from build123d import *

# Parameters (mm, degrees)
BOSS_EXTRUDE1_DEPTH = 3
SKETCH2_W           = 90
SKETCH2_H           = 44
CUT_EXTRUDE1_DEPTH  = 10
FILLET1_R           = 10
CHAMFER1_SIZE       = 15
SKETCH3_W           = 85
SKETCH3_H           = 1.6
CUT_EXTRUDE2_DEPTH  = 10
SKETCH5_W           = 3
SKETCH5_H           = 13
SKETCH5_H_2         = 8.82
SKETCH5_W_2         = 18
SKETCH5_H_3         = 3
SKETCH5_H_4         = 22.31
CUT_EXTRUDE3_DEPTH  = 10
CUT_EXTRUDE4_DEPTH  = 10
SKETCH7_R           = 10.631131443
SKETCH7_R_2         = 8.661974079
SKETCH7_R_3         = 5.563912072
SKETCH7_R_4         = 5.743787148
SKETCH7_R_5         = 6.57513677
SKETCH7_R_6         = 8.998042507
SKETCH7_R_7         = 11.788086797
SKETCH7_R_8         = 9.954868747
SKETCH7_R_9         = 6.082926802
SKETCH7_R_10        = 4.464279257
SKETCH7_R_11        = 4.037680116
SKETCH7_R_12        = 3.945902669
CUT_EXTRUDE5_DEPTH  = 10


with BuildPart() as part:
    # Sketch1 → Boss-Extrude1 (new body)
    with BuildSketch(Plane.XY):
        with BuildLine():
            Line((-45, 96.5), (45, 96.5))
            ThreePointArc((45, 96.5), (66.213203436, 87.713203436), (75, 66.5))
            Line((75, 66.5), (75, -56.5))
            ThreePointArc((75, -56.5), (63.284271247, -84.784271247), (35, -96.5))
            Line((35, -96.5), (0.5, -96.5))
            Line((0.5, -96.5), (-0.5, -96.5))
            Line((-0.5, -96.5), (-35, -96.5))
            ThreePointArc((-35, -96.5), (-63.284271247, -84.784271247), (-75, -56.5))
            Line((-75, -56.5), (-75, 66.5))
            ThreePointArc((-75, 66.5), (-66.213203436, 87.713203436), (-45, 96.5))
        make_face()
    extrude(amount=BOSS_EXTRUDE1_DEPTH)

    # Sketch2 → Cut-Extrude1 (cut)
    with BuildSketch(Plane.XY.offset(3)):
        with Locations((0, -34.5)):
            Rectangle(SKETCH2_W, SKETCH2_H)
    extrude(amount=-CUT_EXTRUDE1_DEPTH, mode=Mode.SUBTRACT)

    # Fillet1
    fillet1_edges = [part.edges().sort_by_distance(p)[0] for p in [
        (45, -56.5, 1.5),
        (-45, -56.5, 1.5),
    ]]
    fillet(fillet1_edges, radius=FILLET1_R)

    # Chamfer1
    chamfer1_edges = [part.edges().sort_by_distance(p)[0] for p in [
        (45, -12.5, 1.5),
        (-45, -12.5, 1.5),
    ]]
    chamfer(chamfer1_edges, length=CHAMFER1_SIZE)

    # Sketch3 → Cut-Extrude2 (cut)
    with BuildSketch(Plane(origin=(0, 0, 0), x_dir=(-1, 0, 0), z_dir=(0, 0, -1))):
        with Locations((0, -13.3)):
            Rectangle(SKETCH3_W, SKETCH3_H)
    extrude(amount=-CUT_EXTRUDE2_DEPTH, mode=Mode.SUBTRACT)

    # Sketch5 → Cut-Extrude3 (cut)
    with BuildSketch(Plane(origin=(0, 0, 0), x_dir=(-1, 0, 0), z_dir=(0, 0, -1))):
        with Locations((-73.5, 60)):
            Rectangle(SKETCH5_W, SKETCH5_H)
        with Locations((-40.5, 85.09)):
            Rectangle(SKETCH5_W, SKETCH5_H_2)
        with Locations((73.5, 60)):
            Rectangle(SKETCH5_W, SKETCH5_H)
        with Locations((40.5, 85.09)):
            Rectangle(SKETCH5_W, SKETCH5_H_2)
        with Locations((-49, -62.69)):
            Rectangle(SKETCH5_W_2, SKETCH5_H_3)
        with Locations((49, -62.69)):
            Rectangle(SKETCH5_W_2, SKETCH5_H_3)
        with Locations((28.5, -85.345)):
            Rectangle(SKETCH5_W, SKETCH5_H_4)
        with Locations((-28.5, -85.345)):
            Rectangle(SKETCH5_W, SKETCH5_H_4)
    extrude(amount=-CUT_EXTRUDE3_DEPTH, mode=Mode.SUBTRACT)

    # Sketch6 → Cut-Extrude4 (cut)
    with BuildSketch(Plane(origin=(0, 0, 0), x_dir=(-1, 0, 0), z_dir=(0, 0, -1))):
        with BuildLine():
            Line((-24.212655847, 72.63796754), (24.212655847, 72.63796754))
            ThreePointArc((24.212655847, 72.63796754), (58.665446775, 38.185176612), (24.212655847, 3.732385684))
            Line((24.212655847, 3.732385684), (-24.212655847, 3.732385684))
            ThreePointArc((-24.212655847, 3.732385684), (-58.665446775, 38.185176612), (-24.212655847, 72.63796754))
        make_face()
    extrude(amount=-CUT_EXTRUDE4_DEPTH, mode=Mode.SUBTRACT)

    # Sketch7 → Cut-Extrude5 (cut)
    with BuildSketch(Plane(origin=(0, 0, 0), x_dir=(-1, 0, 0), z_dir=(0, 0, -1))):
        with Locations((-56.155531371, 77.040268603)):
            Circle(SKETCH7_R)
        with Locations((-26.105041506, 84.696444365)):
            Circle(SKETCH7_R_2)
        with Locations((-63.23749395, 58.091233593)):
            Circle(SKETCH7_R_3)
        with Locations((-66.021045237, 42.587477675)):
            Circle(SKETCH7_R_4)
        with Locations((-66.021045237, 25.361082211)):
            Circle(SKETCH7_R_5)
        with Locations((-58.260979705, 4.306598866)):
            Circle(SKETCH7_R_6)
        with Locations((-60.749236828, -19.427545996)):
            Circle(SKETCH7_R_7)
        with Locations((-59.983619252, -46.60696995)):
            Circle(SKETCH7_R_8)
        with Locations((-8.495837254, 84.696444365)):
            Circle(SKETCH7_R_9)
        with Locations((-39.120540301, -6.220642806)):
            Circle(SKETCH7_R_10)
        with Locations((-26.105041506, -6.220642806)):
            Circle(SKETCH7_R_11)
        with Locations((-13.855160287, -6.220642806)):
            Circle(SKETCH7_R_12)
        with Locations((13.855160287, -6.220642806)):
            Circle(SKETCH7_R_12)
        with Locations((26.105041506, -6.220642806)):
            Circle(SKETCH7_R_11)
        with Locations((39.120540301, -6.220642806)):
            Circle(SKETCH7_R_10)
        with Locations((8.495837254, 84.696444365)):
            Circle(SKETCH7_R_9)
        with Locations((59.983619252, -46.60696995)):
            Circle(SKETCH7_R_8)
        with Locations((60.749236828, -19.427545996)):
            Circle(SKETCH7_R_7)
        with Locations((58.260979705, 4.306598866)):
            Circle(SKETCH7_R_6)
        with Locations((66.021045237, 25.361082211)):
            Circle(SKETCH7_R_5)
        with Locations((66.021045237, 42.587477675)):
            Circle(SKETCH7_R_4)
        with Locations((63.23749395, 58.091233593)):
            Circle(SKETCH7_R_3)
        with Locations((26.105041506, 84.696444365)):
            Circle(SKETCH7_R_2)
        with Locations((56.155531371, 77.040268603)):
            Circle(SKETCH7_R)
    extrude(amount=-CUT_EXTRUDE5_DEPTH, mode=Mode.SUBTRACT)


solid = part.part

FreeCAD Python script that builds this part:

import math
import FreeCAD as App
import Part
import Sketcher

V = App.Vector
Q = App.Units.Quantity


def edges_at(feature, points):
    """Names of the edges that pass closest to the given points."""
    edges = feature.Shape.Edges
    near = lambda p: min(range(len(edges)), key=lambda i: edges[i].distToShape(Part.Vertex(*p))[0])
    return sorted({f"Edge{near(p) + 1}" for p in points})


def add_polygon(sketch, points):
    """Adds a closed chain of lines whose ends are joined by coincident constraints."""
    first, n = sketch.GeometryCount, len(points)
    for a, b in zip(points, points[1:] + points[:1]):
        sketch.addGeometry(Part.LineSegment(App.Vector(*a, 0), App.Vector(*b, 0)), False)
    for i in range(n):
        sketch.addConstraint(Sketcher.Constraint("Coincident", first + i, 2, first + (i + 1) % n, 1))

doc = App.newDocument("Part")
body = doc.addObject("PartDesign::Body", "Body")

# Sketch on XY plane
sketch1 = body.newObject("Sketcher::SketchObject", "Sketch")
sketch1.AttachmentSupport = (doc.getObject("XY_Plane"), [""])
sketch1.MapMode = "FlatFace"
sketch1.addGeometry([
    Part.LineSegment(V(45, 96.5, 0), V(-45, 96.5, 0)),  # 0
    Part.ArcOfCircle(Part.Circle(V(-45, 66.5, 0), V(0, 0, 1), 30), math.radians(90), math.radians(180)),  # 1
    Part.LineSegment(V(-75, 66.5, 0), V(-75, -56.5, 0)),  # 2
    Part.ArcOfCircle(Part.Circle(V(-35, -56.5, 0), V(0, 0, 1), 40), math.radians(-180), math.radians(-90)),  # 3
    Part.LineSegment(V(-35, -96.5, 0), V(35, -96.5, 0)),  # 4
    Part.ArcOfCircle(Part.Circle(V(35, -56.5, 0), V(0, 0, 1), 40), math.radians(-90), math.radians(0)),  # 5
    Part.LineSegment(V(75, -56.5, 0), V(75, 66.5, 0)),  # 6
    Part.ArcOfCircle(Part.Circle(V(45, 66.5, 0), V(0, 0, 1), 30), math.radians(0), math.radians(90)),  # 7
], False)
sketch1.addConstraint([
    Sketcher.Constraint("Tangent", 0, 2, 1, 1),
    Sketcher.Constraint("Tangent", 1, 2, 2, 1),
    Sketcher.Constraint("Tangent", 2, 2, 3, 1),
    Sketcher.Constraint("Tangent", 3, 2, 4, 1),
    Sketcher.Constraint("Tangent", 4, 2, 5, 1),
    Sketcher.Constraint("Tangent", 5, 2, 6, 1),
    Sketcher.Constraint("Tangent", 6, 2, 7, 1),
    Sketcher.Constraint("Tangent", 7, 2, 0, 1),
    Sketcher.Constraint("Horizontal", 0),
    Sketcher.Constraint("Vertical", 2),
    Sketcher.Constraint("Horizontal", 4),
    Sketcher.Constraint("Vertical", 6),
    Sketcher.Constraint("Equal", 3, 5),
    Sketcher.Constraint("Equal", 1, 7),
    Sketcher.Constraint("Radius", 1, Q("30 mm")),
    Sketcher.Constraint("Radius", 3, Q("40 mm")),
    Sketcher.Constraint("DistanceX", 0, 2, 0, 1, Q("90 mm")),
    Sketcher.Constraint("DistanceY", 2, 2, 2, 1, Q("123 mm")),
    Sketcher.Constraint("DistanceX", 1, 3, -1, 1, Q("45 mm")),
    Sketcher.Constraint("DistanceY", -1, 1, 1, 3, Q("66.5 mm")),
])
pad1 = body.newObject("PartDesign::Pad", "Pad")
pad1.Profile = sketch1
pad1.Length = 3

# Sketch on XY plane
sketch2 = body.newObject("Sketcher::SketchObject", "Sketch001")
sketch2.AttachmentSupport = (doc.getObject("XY_Plane"), [""])
sketch2.MapMode = "FlatFace"
sketch2.AttachmentOffset = App.Placement(V(0, 0, 3), App.Rotation())
add_polygon(sketch2, [(-45, -12.5), (-45, -56.5), (45, -56.5), (45, -12.5)])  # lines 0-3
sketch2.addConstraint([
    Sketcher.Constraint("Vertical", 0),
    Sketcher.Constraint("Horizontal", 1),
    Sketcher.Constraint("Vertical", 2),
    Sketcher.Constraint("Horizontal", 3),
    Sketcher.Constraint("DistanceX", 1, 1, 1, 2, Q("90 mm")),
    Sketcher.Constraint("DistanceY", 0, 2, 0, 1, Q("44 mm")),
    Sketcher.Constraint("DistanceX", 0, 2, -1, 1, Q("45 mm")),
    Sketcher.Constraint("DistanceY", 0, 2, -1, 1, Q("56.5 mm")),
])
pocket1 = body.newObject("PartDesign::Pocket", "Pocket")
pocket1.Profile = sketch2
pocket1.Length = 10
doc.recompute()

fillet = body.newObject("PartDesign::Fillet", "Fillet")
fillet.Base = (pocket1, edges_at(pocket1, [(45, -56.5, 1.5), (-45, -56.5, 1.5)]))
fillet.Radius = 10
doc.recompute()

chamfer = body.newObject("PartDesign::Chamfer", "Chamfer")
chamfer.Base = (fillet, edges_at(fillet, [(45, -12.5, 1.5), (-45, -12.5, 1.5)]))
chamfer.Size = 15

# Sketch on XY plane
sketch3 = body.newObject("Sketcher::SketchObject", "Sketch002")
sketch3.AttachmentSupport = (doc.getObject("XY_Plane"), [""])
sketch3.MapMode = "FlatFace"
add_polygon(sketch3, [(42.5, -12.5), (42.5, -14.1), (-42.5, -14.1), (-42.5, -12.5)])  # lines 0-3
sketch3.addConstraint([
    Sketcher.Constraint("Vertical", 0),
    Sketcher.Constraint("Horizontal", 1),
    Sketcher.Constraint("Vertical", 2),
    Sketcher.Constraint("Horizontal", 3),
    Sketcher.Constraint("DistanceX", 1, 2, 1, 1, Q("85 mm")),
    Sketcher.Constraint("DistanceY", 0, 2, 0, 1, Q("1.6 mm")),
    Sketcher.Constraint("DistanceX", -1, 1, 0, 2, Q("42.5 mm")),
    Sketcher.Constraint("DistanceY", 0, 2, -1, 1, Q("14.1 mm")),
])
pocket2 = body.newObject("PartDesign::Pocket", "Pocket001")
pocket2.Profile = sketch3
pocket2.Length = 10
pocket2.Reversed = True

# Sketch on XY plane
sketch4 = body.newObject("Sketcher::SketchObject", "Sketch003")
sketch4.AttachmentSupport = (doc.getObject("XY_Plane"), [""])
sketch4.MapMode = "FlatFace"
add_polygon(sketch4, [(75, 66.5), (75, 53.5), (72, 53.5), (72, 66.5)])  # lines 0-3
add_polygon(sketch4, [(42, 89.5), (42, 80.68), (39, 80.68), (39, 89.5)])  # lines 4-7
add_polygon(sketch4, [(-72, 66.5), (-72, 53.5), (-75, 53.5), (-75, 66.5)])  # lines 8-11
add_polygon(sketch4, [(-39, 89.5), (-39, 80.68), (-42, 80.68), (-42, 89.5)])  # lines 12-15
add_polygon(sketch4, [(58, -61.19), (58, -64.19), (40, -64.19), (40, -61.19)])  # lines 16-19
add_polygon(sketch4, [(-40, -61.19), (-40, -64.19), (-58, -64.19), (-58, -61.19)])  # lines 20-23
add_polygon(sketch4, [(-27, -74.19), (-27, -96.5), (-30, -96.5), (-30, -74.19)])  # lines 24-27
add_polygon(sketch4, [(30, -74.19), (30, -96.5), (27, -96.5), (27, -74.19)])  # lines 28-31
sketch4.addConstraint([
    Sketcher.Constraint("Vertical", 0),
    Sketcher.Constraint("Horizontal", 1),
    Sketcher.Constraint("Vertical", 2),
    Sketcher.Constraint("Horizontal", 3),
    Sketcher.Constraint("Vertical", 4),
    Sketcher.Constraint("Horizontal", 5),
    Sketcher.Constraint("Vertical", 6),
    Sketcher.Constraint("Horizontal", 7),
    Sketcher.Constraint("Vertical", 8),
    Sketcher.Constraint("Horizontal", 9),
    Sketcher.Constraint("Vertical", 10),
    Sketcher.Constraint("Horizontal", 11),
    Sketcher.Constraint("Vertical", 12),
    Sketcher.Constraint("Horizontal", 13),
    Sketcher.Constraint("Vertical", 14),
    Sketcher.Constraint("Horizontal", 15),
    Sketcher.Constraint("Vertical", 16),
    Sketcher.Constraint("Horizontal", 17),
    Sketcher.Constraint("Vertical", 18),
    Sketcher.Constraint("Horizontal", 19),
    Sketcher.Constraint("Vertical", 20),
    Sketcher.Constraint("Horizontal", 21),
    Sketcher.Constraint("Vertical", 22),
    Sketcher.Constraint("Horizontal", 23),
    Sketcher.Constraint("Vertical", 24),
    Sketcher.Constraint("Horizontal", 25),
    Sketcher.Constraint("Vertical", 26),
    Sketcher.Constraint("Horizontal", 27),
    Sketcher.Constraint("Vertical", 28),
    Sketcher.Constraint("Horizontal", 29),
    Sketcher.Constraint("Vertical", 30),
    Sketcher.Constraint("Horizontal", 31),
    Sketcher.Constraint("Symmetric", 1, 2, 8, 2, -2),
    Sketcher.Constraint("Symmetric", 3, 2, 10, 2, -2),
    Sketcher.Constraint("Symmetric", 5, 2, 12, 2, -2),
    Sketcher.Constraint("Symmetric", 7, 2, 14, 2, -2),
    Sketcher.Constraint("Symmetric", 17, 2, 20, 2, -2),
    Sketcher.Constraint("Symmetric", 19, 2, 22, 2, -2),
    Sketcher.Constraint("Symmetric", 25, 2, 28, 2, -2),
    Sketcher.Constraint("Symmetric", 27, 2, 30, 2, -2),
    Sketcher.Constraint("Equal", 3, 5),
    Sketcher.Constraint("Equal", 15, 25),
    Sketcher.Constraint("Equal", 31, 16),
    Sketcher.Constraint("DistanceX", 1, 2, 1, 1, Q("3 mm")),
    Sketcher.Constraint("DistanceX", 17, 2, 17, 1, Q("18 mm")),
    Sketcher.Constraint("DistanceY", 0, 2, 0, 1, Q("13 mm")),
    Sketcher.Constraint("DistanceX", -1, 1, 0, 2, Q("75 mm")),
    Sketcher.Constraint("DistanceX", -1, 1, 4, 2, Q("42 mm")),
    Sketcher.Constraint("DistanceX", -1, 1, 16, 2, Q("58 mm")),
    Sketcher.Constraint("DistanceX", 24, 2, -1, 1, Q("27 mm")),
    Sketcher.Constraint("DistanceY", 2, 2, 6, 2, Q("23 mm")),
    Sketcher.Constraint("DistanceY", 26, 2, 20, 2, Q("10 mm")),
    Sketcher.Constraint("DistanceY", 4, 2, 4, 1, Q("8.82 mm")),
    Sketcher.Constraint("DistanceY", 24, 2, 24, 1, Q("22.31 mm")),
    Sketcher.Constraint("DistanceY", -1, 1, 0, 2, Q("53.5 mm")),
    Sketcher.Constraint("DistanceY", 24, 2, -1, 1, Q("96.5 mm")),
])
pocket3 = body.newObject("PartDesign::Pocket", "Pocket002")
pocket3.Profile = sketch4
pocket3.Length = 10
pocket3.Reversed = True

# Sketch on XY plane
sketch5 = body.newObject("Sketcher::SketchObject", "Sketch004")
sketch5.AttachmentSupport = (doc.getObject("XY_Plane"), [""])
sketch5.MapMode = "FlatFace"
sketch5.addGeometry([
    Part.LineSegment(V(-24.212656, 72.637968, 0), V(24.212656, 72.637968, 0)),
    Part.ArcOfCircle(Part.Circle(V(24.212656, 38.185177, 0), V(0, 0, 1), 34.452791), math.radians(-90), math.radians(90)),
    Part.LineSegment(V(24.212656, 3.732386, 0), V(-24.212656, 3.732386, 0)),
    Part.ArcOfCircle(Part.Circle(V(-24.212656, 38.185177, 0), V(0, 0, 1), 34.452791), math.radians(90), math.radians(270)),
], False)
sketch5.addConstraint([
    Sketcher.Constraint("Tangent", 0, 2, 1, 2),
    Sketcher.Constraint("Tangent", 1, 1, 2, 1),
    Sketcher.Constraint("Tangent", 2, 2, 3, 2),
    Sketcher.Constraint("Tangent", 3, 1, 0, 1),
    Sketcher.Constraint("Horizontal", 0),
    Sketcher.Constraint("Horizontal", 2),
    Sketcher.Constraint("Radius", 1, Q("34.452791 mm")),
    Sketcher.Constraint("DistanceX", 0, 1, 0, 2, Q("48.425312 mm")),
    Sketcher.Constraint("DistanceX", -1, 1, 1, 3, Q("24.212656 mm")),
    Sketcher.Constraint("DistanceY", -1, 1, 1, 3, Q("38.185177 mm")),
])
pocket4 = body.newObject("PartDesign::Pocket", "Pocket003")
pocket4.Profile = sketch5
pocket4.Length = 10
pocket4.Reversed = True

# Sketch on XY plane
sketch6 = body.newObject("Sketcher::SketchObject", "Sketch005")
sketch6.AttachmentSupport = (doc.getObject("XY_Plane"), [""])
sketch6.MapMode = "FlatFace"
sketch6.addGeometry([
    Part.Circle(V(56.155531, 77.040269, 0), V(0, 0, 1), 10.631131),  # 0
    Part.Circle(V(26.105042, 84.696444, 0), V(0, 0, 1), 8.661974),  # 1
    Part.Circle(V(63.237494, 58.091234, 0), V(0, 0, 1), 5.563912),  # 2
    Part.Circle(V(66.021045, 42.587478, 0), V(0, 0, 1), 5.743787),  # 3
    Part.Circle(V(66.021045, 25.361082, 0), V(0, 0, 1), 6.575137),  # 4
    Part.Circle(V(58.26098, 4.306599, 0), V(0, 0, 1), 8.998043),  # 5
    Part.Circle(V(60.749237, -19.427546, 0), V(0, 0, 1), 11.788087),  # 6
    Part.Circle(V(59.983619, -46.60697, 0), V(0, 0, 1), 9.954869),  # 7
    Part.Circle(V(8.495837, 84.696444, 0), V(0, 0, 1), 6.082927),  # 8
    Part.Circle(V(39.12054, -6.220643, 0), V(0, 0, 1), 4.464279),  # 9
    Part.Circle(V(26.105042, -6.220643, 0), V(0, 0, 1), 4.03768),  # 10
    Part.Circle(V(13.85516, -6.220643, 0), V(0, 0, 1), 3.945903),  # 11
    Part.Circle(V(-13.85516, -6.220643, 0), V(0, 0, 1), 3.945903),  # 12
    Part.Circle(V(-26.105042, -6.220643, 0), V(0, 0, 1), 4.03768),  # 13
    Part.Circle(V(-39.12054, -6.220643, 0), V(0, 0, 1), 4.464279),  # 14
    Part.Circle(V(-8.495837, 84.696444, 0), V(0, 0, 1), 6.082927),  # 15
    Part.Circle(V(-59.983619, -46.60697, 0), V(0, 0, 1), 9.954869),  # 16
    Part.Circle(V(-60.749237, -19.427546, 0), V(0, 0, 1), 11.788087),  # 17
    Part.Circle(V(-58.26098, 4.306599, 0), V(0, 0, 1), 8.998043),  # 18
    Part.Circle(V(-66.021045, 25.361082, 0), V(0, 0, 1), 6.575137),  # 19
    Part.Circle(V(-66.021045, 42.587478, 0), V(0, 0, 1), 5.743787),  # 20
    Part.Circle(V(-63.237494, 58.091234, 0), V(0, 0, 1), 5.563912),  # 21
    Part.Circle(V(-26.105042, 84.696444, 0), V(0, 0, 1), 8.661974),  # 22
    Part.Circle(V(-56.155531, 77.040269, 0), V(0, 0, 1), 10.631131),  # 23
], False)
sketch6.addConstraint([
    Sketcher.Constraint("Equal", 11, 12),
    Sketcher.Constraint("Equal", 10, 13),
    Sketcher.Constraint("Equal", 9, 14),
    Sketcher.Constraint("Equal", 8, 15),
    Sketcher.Constraint("Equal", 7, 16),
    Sketcher.Constraint("Equal", 6, 17),
    Sketcher.Constraint("Equal", 5, 18),
    Sketcher.Constraint("Equal", 4, 19),
    Sketcher.Constraint("Equal", 3, 20),
    Sketcher.Constraint("Equal", 2, 21),
    Sketcher.Constraint("Equal", 1, 22),
    Sketcher.Constraint("Equal", 0, 23),
    Sketcher.Constraint("Symmetric", 11, 3, 12, 3, -2),
    Sketcher.Constraint("Symmetric", 10, 3, 13, 3, -2),
    Sketcher.Constraint("Symmetric", 9, 3, 14, 3, -2),
    Sketcher.Constraint("Symmetric", 8, 3, 15, 3, -2),
    Sketcher.Constraint("Symmetric", 7, 3, 16, 3, -2),
    Sketcher.Constraint("Symmetric", 6, 3, 17, 3, -2),
    Sketcher.Constraint("Symmetric", 5, 3, 18, 3, -2),
    Sketcher.Constraint("Symmetric", 4, 3, 19, 3, -2),
    Sketcher.Constraint("Symmetric", 3, 3, 20, 3, -2),
    Sketcher.Constraint("Symmetric", 2, 3, 21, 3, -2),
    Sketcher.Constraint("Symmetric", 1, 3, 22, 3, -2),
    Sketcher.Constraint("Symmetric", 0, 3, 23, 3, -2),
    Sketcher.Constraint("Horizontal", 1, 3, 8, 3),
    Sketcher.Constraint("Horizontal", 9, 3, 10, 3),
    Sketcher.Constraint("Horizontal", 10, 3, 11, 3),
    Sketcher.Constraint("Vertical", 3, 3, 4, 3),
    Sketcher.Constraint("Vertical", 1, 3, 10, 3),
    Sketcher.Constraint("Diameter", 1, Q("17.323948 mm")),
    Sketcher.Constraint("Diameter", 9, Q("8.928559 mm")),
    Sketcher.Constraint("Diameter", 10, Q("8.07536 mm")),
    Sketcher.Constraint("Diameter", 0, Q("21.262263 mm")),
    Sketcher.Constraint("Diameter", 2, Q("11.127824 mm")),
    Sketcher.Constraint("Diameter", 3, Q("11.487574 mm")),
    Sketcher.Constraint("Diameter", 4, Q("13.150274 mm")),
    Sketcher.Constraint("Diameter", 5, Q("17.996085 mm")),
    Sketcher.Constraint("Diameter", 6, Q("23.576174 mm")),
    Sketcher.Constraint("Diameter", 7, Q("19.909737 mm")),
    Sketcher.Constraint("Diameter", 8, Q("12.165854 mm")),
    Sketcher.Constraint("Diameter", 11, Q("7.891805 mm")),
    Sketcher.Constraint("DistanceY", -1, 1, 5, 3, Q("4.306599 mm")),
    Sketcher.Constraint("DistanceX", 10, 3, 9, 3, Q("13.015499 mm")),
    Sketcher.Constraint("DistanceX", 12, 3, 10, 3, Q("39.960202 mm")),
    Sketcher.Constraint("DistanceX", -1, 1, 0, 3, Q("56.155531 mm")),
    Sketcher.Constraint("DistanceY", -1, 1, 0, 3, Q("77.040269 mm")),
    Sketcher.Constraint("DistanceX", -1, 1, 1, 3, Q("26.105042 mm")),
    Sketcher.Constraint("DistanceX", -1, 1, 5, 3, Q("58.26098 mm")),
    Sketcher.Constraint("DistanceX", -1, 1, 7, 3, Q("59.983619 mm")),
    Sketcher.Constraint("DistanceY", 7, 3, -1, 1, Q("46.60697 mm")),
    Sketcher.Constraint("DistanceY", 2, 3, 1, 3, Q("26.605211 mm")),
    Sketcher.Constraint("DistanceX", 2, 3, 3, 3, Q("2.783551 mm")),
    Sketcher.Constraint("DistanceY", 3, 3, 0, 3, Q("34.452791 mm")),
    Sketcher.Constraint("DistanceY", 4, 3, 2, 3, Q("32.730151 mm")),
    Sketcher.Constraint("DistanceX", 6, 3, 4, 3, Q("5.271808 mm")),
    Sketcher.Constraint("DistanceY", 6, 3, 4, 3, Q("44.788628 mm")),
    Sketcher.Constraint("DistanceY", 9, 3, 5, 3, Q("10.527242 mm")),
    Sketcher.Constraint("DistanceX", 15, 3, 1, 3, Q("34.600879 mm")),
    Sketcher.Constraint("DistanceX", 15, 3, 2, 3, Q("71.733331 mm")),
    Sketcher.Constraint("DistanceY", -1, 1, 1, 3, Q("84.696444 mm")),
])
pocket5 = body.newObject("PartDesign::Pocket", "Pocket004")
pocket5.Profile = sketch6
pocket5.Length = 10
pocket5.Reversed = True

doc.recompute()
